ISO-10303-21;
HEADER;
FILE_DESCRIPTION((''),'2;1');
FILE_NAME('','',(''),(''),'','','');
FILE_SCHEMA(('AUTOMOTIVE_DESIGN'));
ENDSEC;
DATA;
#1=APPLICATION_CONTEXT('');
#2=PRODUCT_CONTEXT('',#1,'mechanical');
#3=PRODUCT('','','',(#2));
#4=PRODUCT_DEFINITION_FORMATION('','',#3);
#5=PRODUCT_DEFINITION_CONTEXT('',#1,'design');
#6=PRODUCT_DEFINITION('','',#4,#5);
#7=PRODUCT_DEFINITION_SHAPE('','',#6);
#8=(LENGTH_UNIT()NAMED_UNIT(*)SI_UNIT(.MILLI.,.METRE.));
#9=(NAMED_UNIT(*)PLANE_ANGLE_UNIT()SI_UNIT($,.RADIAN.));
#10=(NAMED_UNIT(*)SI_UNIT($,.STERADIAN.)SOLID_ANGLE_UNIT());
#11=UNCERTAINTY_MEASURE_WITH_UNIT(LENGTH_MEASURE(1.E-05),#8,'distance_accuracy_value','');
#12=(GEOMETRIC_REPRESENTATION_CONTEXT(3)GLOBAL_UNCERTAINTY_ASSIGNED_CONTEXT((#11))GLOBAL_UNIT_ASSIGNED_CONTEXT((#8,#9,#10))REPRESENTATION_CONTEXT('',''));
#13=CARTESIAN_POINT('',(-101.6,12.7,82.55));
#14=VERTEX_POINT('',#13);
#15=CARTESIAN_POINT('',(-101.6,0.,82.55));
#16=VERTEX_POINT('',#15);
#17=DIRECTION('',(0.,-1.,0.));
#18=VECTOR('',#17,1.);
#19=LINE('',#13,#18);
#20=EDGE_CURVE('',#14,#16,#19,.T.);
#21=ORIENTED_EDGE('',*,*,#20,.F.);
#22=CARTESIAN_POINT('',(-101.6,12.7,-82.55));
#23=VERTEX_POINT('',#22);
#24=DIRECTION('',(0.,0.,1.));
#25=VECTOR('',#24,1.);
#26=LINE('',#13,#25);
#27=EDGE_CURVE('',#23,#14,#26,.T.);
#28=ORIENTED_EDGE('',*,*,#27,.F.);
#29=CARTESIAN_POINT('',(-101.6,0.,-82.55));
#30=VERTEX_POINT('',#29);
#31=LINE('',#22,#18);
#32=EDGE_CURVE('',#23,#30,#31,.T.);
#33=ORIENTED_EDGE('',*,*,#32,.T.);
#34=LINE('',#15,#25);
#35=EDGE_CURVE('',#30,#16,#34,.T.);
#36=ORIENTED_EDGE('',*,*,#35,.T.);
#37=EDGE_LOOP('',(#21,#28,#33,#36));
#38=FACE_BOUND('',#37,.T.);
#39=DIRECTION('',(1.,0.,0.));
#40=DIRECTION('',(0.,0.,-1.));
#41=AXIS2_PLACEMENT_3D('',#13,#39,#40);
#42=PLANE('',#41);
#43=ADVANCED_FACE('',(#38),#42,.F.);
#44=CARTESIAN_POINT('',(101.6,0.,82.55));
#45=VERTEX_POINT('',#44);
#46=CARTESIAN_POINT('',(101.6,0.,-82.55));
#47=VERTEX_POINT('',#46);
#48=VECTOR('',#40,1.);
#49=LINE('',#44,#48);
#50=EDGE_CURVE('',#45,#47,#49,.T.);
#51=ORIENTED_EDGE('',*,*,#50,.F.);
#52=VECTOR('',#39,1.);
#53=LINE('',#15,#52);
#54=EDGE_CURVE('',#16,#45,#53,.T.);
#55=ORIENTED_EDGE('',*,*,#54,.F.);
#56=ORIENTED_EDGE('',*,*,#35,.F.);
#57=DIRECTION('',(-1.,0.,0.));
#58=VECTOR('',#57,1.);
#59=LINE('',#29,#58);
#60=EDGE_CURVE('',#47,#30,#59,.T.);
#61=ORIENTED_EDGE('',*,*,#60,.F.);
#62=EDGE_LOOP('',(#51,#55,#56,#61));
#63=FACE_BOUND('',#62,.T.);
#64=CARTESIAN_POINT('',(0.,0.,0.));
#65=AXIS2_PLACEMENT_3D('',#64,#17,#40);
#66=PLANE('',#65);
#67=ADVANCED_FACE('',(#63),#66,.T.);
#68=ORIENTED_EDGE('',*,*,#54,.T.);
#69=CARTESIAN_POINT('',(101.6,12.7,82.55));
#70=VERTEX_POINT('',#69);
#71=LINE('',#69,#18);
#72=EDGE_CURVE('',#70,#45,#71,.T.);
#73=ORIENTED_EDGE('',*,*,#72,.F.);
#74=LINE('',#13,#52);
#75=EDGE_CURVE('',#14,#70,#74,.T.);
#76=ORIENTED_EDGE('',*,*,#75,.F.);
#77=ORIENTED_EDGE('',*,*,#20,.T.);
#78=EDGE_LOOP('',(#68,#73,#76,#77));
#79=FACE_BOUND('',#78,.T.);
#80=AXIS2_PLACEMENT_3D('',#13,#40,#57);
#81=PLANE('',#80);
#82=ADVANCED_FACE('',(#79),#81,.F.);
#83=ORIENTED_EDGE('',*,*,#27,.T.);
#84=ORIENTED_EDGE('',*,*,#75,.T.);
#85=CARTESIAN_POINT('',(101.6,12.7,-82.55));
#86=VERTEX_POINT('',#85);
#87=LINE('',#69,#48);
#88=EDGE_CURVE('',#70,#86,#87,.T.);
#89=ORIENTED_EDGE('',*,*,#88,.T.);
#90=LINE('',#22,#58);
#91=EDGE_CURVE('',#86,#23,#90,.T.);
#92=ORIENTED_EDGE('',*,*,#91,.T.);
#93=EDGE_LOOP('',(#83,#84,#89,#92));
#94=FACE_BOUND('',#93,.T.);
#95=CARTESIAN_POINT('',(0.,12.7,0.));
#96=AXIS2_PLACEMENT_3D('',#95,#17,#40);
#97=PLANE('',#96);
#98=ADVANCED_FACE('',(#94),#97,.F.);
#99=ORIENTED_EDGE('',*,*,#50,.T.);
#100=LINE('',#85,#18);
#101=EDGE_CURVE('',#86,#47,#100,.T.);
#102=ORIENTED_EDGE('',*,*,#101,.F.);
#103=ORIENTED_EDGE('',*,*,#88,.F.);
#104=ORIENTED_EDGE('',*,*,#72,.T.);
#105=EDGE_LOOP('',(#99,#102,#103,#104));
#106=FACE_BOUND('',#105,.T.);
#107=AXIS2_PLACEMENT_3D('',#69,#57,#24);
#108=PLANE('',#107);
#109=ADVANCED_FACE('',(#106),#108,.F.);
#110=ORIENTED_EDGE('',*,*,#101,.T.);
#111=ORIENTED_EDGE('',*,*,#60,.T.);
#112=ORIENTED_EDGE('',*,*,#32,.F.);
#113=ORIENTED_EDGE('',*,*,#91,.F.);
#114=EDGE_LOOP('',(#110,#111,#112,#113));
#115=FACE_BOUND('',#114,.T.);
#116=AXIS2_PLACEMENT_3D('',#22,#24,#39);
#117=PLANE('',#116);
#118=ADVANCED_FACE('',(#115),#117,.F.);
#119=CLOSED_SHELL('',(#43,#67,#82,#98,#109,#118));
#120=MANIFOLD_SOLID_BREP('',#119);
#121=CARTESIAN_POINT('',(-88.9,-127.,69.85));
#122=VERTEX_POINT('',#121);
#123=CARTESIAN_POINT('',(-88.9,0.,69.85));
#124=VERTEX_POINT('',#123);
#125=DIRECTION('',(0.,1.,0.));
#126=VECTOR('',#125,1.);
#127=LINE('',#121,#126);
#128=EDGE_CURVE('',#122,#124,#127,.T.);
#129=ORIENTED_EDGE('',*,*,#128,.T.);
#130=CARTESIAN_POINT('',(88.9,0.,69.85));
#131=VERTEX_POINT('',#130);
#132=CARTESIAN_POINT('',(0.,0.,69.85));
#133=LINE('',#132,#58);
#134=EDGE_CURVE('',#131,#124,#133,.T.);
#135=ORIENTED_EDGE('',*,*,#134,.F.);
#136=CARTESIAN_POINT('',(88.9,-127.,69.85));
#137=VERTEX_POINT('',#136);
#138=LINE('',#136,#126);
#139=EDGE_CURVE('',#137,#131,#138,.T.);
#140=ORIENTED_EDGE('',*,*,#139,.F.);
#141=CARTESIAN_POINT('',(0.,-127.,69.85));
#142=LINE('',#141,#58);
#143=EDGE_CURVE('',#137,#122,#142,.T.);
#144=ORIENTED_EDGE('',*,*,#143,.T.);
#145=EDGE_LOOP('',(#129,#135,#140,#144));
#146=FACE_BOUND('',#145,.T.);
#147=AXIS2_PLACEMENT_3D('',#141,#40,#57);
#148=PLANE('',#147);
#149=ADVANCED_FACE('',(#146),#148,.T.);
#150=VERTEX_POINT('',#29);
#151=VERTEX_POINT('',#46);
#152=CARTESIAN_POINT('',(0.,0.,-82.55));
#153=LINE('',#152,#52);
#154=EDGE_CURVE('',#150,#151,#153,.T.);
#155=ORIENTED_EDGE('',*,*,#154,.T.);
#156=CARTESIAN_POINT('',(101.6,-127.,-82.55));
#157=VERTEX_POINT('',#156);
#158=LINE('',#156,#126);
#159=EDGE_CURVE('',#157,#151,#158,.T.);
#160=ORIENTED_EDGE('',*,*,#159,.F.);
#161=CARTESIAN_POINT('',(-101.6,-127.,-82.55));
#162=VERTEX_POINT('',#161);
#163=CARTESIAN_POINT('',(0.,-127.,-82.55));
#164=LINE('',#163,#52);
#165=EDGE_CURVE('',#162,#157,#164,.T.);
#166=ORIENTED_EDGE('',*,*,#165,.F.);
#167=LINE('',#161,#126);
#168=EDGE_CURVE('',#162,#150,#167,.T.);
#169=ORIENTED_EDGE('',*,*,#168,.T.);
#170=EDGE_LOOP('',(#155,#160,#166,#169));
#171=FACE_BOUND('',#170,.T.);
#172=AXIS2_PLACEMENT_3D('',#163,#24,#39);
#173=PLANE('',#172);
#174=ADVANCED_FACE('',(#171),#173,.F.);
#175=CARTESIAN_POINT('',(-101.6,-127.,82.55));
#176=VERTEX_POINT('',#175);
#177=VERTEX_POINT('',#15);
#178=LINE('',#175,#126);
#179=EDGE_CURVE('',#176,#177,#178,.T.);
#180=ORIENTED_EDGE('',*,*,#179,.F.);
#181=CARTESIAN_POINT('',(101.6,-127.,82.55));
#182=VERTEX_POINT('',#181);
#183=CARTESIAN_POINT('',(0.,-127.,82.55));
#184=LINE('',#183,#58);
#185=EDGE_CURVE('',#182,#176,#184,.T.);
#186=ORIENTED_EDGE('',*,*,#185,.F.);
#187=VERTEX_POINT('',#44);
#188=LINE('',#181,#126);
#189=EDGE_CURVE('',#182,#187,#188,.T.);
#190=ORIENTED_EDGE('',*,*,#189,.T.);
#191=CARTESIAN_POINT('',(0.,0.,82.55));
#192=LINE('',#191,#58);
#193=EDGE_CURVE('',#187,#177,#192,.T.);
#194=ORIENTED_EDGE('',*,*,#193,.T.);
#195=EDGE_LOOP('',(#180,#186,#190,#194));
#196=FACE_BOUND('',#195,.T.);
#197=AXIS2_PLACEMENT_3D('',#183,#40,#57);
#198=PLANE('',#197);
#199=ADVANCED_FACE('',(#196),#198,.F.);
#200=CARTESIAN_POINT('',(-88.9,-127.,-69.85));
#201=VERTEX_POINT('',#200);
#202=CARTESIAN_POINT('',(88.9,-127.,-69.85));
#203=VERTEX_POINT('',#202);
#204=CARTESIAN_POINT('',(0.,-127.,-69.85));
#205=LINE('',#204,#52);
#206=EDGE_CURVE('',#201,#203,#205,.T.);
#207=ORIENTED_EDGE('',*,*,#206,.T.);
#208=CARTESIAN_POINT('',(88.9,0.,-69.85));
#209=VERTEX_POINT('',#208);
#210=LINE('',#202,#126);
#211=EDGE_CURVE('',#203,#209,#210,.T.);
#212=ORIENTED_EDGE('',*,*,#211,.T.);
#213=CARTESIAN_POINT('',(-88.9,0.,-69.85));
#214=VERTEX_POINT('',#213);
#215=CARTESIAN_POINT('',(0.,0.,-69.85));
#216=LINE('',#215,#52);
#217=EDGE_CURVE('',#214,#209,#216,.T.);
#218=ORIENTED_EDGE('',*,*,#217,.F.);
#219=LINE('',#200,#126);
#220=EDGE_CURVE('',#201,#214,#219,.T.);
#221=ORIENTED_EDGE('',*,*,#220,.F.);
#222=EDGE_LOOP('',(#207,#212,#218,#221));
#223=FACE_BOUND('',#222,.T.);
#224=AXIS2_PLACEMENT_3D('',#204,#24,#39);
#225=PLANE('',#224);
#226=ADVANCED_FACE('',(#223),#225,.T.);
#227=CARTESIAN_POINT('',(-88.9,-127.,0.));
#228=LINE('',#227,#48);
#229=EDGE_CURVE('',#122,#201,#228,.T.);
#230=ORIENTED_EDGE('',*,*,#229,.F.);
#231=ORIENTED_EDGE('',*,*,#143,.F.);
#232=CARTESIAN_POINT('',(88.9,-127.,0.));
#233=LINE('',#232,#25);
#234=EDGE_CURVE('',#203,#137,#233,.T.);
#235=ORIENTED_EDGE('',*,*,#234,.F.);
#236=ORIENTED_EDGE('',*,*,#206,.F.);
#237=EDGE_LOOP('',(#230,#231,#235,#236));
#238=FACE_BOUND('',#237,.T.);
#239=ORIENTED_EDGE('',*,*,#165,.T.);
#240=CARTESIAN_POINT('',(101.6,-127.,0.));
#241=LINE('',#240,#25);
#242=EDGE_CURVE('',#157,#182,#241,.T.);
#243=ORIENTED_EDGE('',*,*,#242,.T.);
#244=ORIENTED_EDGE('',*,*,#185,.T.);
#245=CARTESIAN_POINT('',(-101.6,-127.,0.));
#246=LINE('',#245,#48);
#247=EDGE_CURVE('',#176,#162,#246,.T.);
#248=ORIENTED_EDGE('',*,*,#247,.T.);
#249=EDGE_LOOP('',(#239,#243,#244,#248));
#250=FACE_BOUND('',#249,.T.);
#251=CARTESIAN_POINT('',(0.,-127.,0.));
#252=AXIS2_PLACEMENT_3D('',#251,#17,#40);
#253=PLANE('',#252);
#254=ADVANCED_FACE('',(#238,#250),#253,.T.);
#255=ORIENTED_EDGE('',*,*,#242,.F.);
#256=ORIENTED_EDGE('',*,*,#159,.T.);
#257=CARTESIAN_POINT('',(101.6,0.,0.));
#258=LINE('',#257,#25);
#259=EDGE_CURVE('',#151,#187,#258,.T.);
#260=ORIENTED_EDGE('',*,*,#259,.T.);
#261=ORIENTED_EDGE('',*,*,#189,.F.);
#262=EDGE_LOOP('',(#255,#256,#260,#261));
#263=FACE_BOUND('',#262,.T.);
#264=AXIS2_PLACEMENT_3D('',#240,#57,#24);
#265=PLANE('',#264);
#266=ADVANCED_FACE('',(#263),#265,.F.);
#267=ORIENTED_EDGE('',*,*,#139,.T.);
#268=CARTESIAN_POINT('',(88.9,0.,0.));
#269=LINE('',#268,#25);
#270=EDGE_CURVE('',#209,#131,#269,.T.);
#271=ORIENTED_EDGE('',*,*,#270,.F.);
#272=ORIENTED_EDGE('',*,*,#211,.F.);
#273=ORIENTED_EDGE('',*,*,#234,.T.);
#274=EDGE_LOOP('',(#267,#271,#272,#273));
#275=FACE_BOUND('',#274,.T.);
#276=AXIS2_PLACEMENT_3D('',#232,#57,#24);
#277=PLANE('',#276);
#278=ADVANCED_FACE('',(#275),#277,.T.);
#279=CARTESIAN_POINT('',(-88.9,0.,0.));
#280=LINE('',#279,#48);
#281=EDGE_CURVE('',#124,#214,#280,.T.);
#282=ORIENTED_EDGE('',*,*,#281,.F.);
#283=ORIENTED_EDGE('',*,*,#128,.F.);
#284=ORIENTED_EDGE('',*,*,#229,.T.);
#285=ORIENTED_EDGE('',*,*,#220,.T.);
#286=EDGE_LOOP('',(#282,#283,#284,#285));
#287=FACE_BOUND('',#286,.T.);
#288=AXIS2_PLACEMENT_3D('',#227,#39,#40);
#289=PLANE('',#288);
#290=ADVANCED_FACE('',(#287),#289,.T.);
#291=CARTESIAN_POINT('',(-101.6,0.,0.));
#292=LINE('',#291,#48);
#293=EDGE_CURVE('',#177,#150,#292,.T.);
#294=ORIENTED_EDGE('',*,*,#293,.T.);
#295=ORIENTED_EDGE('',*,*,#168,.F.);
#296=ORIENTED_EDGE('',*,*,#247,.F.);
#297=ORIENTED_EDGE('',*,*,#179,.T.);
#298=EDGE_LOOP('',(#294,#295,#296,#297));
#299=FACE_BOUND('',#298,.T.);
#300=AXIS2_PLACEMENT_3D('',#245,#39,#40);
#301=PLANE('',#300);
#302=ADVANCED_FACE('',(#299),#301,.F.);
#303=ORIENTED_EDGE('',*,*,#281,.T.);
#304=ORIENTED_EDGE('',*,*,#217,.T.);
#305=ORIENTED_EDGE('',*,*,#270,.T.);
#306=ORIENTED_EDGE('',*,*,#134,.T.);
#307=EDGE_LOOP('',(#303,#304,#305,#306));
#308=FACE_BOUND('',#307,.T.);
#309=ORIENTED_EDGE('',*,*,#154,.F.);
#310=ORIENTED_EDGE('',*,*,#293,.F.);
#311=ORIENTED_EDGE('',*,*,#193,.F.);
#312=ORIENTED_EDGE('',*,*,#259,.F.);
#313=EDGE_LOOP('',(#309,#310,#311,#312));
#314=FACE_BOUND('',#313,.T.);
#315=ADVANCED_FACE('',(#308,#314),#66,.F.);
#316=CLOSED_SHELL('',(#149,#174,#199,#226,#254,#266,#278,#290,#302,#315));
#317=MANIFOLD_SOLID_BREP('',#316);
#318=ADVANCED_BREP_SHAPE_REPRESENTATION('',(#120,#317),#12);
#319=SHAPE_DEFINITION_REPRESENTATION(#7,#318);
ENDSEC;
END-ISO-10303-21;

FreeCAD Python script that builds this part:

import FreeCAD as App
import Part
import Sketcher
from FreeCAD import Vector
Q = App.Units.Quantity


def add_polygon(sketch, points):
    """Adds a closed chain of lines whose ends are joined by coincident constraints."""
    first, n = sketch.GeometryCount, len(points)
    for a, b in zip(points, points[1:] + points[:1]):
        sketch.addGeometry(Part.LineSegment(App.Vector(*a, 0), App.Vector(*b, 0)), False)
    for i in range(n):
        sketch.addConstraint(Sketcher.Constraint("Coincident", first + i, 2, first + (i + 1) % n, 1))

doc = App.newDocument("Part")
body = doc.addObject("PartDesign::Body", "Body")

sketch1 = body.newObject("Sketcher::SketchObject", "Sketch")
sketch1.AttachmentSupport = (doc.getObject("XZ_Plane"), [""])
sketch1.MapMode = "FlatFace"
add_polygon(sketch1, [(-102, -83), (-102, 83), (102, 83), (102, -83)])
sketch1.addConstraint([
    Sketcher.Constraint("Vertical", 0),
    Sketcher.Constraint("Horizontal", 1),
    Sketcher.Constraint("Vertical", 2),
    Sketcher.Constraint("Horizontal", 3),
    Sketcher.Constraint("Symmetric", 0, 2, 2, 2, -1, 1),
    Sketcher.Constraint("DistanceX", 1, 1, 1, 2, Q("8 in")),
    Sketcher.Constraint("DistanceY", 0, 1, 0, 2, Q("6.5 in")),
])
pad1 = body.newObject("PartDesign::Pad", "Pad")
pad1.Profile = sketch1
pad1.Length = Q("0.5 in")
pad1.Reversed = True
body2 = doc.addObject("PartDesign::Body", "Body001")

sketch2 = body2.newObject("Sketcher::SketchObject", "Sketch001")
sketch2.AttachmentSupport = (doc.getObject("XZ_Plane001"), [""])
sketch2.MapMode = "FlatFace"
add_polygon(sketch2, [(-102, 83), (-102, -83), (102, -83), (102, 83)])
add_polygon(sketch2, [(89, -70), (-89, -70), (-89, 70), (89, 70)])
sketch2.addConstraint([
    Sketcher.Constraint("Vertical", 0),
    Sketcher.Constraint("Horizontal", 1),
    Sketcher.Constraint("Vertical", 2),
    Sketcher.Constraint("Horizontal", 3),
    Sketcher.Constraint("Horizontal", 4),
    Sketcher.Constraint("Vertical", 5),
    Sketcher.Constraint("Horizontal", 6),
    Sketcher.Constraint("Vertical", 7),
    Sketcher.Constraint("Symmetric", 0, 2, 2, 2, -1, 1),
    Sketcher.Constraint("Symmetric", 4, 2, 6, 2, -1, 1),
    Sketcher.Constraint("DistanceX", 1, 1, 1, 2, Q("8 in")),
    Sketcher.Constraint("DistanceX", 4, 2, 4, 1, Q("7 in")),
    Sketcher.Constraint("DistanceY", 0, 2, 0, 1, Q("6.5 in")),
    Sketcher.Constraint("DistanceY", 5, 1, 5, 2, Q("5.5 in")),
])
pad2 = body2.newObject("PartDesign::Pad", "Pad001")
pad2.Profile = sketch2
pad2.Length = Q("5 in")

doc.recompute()
